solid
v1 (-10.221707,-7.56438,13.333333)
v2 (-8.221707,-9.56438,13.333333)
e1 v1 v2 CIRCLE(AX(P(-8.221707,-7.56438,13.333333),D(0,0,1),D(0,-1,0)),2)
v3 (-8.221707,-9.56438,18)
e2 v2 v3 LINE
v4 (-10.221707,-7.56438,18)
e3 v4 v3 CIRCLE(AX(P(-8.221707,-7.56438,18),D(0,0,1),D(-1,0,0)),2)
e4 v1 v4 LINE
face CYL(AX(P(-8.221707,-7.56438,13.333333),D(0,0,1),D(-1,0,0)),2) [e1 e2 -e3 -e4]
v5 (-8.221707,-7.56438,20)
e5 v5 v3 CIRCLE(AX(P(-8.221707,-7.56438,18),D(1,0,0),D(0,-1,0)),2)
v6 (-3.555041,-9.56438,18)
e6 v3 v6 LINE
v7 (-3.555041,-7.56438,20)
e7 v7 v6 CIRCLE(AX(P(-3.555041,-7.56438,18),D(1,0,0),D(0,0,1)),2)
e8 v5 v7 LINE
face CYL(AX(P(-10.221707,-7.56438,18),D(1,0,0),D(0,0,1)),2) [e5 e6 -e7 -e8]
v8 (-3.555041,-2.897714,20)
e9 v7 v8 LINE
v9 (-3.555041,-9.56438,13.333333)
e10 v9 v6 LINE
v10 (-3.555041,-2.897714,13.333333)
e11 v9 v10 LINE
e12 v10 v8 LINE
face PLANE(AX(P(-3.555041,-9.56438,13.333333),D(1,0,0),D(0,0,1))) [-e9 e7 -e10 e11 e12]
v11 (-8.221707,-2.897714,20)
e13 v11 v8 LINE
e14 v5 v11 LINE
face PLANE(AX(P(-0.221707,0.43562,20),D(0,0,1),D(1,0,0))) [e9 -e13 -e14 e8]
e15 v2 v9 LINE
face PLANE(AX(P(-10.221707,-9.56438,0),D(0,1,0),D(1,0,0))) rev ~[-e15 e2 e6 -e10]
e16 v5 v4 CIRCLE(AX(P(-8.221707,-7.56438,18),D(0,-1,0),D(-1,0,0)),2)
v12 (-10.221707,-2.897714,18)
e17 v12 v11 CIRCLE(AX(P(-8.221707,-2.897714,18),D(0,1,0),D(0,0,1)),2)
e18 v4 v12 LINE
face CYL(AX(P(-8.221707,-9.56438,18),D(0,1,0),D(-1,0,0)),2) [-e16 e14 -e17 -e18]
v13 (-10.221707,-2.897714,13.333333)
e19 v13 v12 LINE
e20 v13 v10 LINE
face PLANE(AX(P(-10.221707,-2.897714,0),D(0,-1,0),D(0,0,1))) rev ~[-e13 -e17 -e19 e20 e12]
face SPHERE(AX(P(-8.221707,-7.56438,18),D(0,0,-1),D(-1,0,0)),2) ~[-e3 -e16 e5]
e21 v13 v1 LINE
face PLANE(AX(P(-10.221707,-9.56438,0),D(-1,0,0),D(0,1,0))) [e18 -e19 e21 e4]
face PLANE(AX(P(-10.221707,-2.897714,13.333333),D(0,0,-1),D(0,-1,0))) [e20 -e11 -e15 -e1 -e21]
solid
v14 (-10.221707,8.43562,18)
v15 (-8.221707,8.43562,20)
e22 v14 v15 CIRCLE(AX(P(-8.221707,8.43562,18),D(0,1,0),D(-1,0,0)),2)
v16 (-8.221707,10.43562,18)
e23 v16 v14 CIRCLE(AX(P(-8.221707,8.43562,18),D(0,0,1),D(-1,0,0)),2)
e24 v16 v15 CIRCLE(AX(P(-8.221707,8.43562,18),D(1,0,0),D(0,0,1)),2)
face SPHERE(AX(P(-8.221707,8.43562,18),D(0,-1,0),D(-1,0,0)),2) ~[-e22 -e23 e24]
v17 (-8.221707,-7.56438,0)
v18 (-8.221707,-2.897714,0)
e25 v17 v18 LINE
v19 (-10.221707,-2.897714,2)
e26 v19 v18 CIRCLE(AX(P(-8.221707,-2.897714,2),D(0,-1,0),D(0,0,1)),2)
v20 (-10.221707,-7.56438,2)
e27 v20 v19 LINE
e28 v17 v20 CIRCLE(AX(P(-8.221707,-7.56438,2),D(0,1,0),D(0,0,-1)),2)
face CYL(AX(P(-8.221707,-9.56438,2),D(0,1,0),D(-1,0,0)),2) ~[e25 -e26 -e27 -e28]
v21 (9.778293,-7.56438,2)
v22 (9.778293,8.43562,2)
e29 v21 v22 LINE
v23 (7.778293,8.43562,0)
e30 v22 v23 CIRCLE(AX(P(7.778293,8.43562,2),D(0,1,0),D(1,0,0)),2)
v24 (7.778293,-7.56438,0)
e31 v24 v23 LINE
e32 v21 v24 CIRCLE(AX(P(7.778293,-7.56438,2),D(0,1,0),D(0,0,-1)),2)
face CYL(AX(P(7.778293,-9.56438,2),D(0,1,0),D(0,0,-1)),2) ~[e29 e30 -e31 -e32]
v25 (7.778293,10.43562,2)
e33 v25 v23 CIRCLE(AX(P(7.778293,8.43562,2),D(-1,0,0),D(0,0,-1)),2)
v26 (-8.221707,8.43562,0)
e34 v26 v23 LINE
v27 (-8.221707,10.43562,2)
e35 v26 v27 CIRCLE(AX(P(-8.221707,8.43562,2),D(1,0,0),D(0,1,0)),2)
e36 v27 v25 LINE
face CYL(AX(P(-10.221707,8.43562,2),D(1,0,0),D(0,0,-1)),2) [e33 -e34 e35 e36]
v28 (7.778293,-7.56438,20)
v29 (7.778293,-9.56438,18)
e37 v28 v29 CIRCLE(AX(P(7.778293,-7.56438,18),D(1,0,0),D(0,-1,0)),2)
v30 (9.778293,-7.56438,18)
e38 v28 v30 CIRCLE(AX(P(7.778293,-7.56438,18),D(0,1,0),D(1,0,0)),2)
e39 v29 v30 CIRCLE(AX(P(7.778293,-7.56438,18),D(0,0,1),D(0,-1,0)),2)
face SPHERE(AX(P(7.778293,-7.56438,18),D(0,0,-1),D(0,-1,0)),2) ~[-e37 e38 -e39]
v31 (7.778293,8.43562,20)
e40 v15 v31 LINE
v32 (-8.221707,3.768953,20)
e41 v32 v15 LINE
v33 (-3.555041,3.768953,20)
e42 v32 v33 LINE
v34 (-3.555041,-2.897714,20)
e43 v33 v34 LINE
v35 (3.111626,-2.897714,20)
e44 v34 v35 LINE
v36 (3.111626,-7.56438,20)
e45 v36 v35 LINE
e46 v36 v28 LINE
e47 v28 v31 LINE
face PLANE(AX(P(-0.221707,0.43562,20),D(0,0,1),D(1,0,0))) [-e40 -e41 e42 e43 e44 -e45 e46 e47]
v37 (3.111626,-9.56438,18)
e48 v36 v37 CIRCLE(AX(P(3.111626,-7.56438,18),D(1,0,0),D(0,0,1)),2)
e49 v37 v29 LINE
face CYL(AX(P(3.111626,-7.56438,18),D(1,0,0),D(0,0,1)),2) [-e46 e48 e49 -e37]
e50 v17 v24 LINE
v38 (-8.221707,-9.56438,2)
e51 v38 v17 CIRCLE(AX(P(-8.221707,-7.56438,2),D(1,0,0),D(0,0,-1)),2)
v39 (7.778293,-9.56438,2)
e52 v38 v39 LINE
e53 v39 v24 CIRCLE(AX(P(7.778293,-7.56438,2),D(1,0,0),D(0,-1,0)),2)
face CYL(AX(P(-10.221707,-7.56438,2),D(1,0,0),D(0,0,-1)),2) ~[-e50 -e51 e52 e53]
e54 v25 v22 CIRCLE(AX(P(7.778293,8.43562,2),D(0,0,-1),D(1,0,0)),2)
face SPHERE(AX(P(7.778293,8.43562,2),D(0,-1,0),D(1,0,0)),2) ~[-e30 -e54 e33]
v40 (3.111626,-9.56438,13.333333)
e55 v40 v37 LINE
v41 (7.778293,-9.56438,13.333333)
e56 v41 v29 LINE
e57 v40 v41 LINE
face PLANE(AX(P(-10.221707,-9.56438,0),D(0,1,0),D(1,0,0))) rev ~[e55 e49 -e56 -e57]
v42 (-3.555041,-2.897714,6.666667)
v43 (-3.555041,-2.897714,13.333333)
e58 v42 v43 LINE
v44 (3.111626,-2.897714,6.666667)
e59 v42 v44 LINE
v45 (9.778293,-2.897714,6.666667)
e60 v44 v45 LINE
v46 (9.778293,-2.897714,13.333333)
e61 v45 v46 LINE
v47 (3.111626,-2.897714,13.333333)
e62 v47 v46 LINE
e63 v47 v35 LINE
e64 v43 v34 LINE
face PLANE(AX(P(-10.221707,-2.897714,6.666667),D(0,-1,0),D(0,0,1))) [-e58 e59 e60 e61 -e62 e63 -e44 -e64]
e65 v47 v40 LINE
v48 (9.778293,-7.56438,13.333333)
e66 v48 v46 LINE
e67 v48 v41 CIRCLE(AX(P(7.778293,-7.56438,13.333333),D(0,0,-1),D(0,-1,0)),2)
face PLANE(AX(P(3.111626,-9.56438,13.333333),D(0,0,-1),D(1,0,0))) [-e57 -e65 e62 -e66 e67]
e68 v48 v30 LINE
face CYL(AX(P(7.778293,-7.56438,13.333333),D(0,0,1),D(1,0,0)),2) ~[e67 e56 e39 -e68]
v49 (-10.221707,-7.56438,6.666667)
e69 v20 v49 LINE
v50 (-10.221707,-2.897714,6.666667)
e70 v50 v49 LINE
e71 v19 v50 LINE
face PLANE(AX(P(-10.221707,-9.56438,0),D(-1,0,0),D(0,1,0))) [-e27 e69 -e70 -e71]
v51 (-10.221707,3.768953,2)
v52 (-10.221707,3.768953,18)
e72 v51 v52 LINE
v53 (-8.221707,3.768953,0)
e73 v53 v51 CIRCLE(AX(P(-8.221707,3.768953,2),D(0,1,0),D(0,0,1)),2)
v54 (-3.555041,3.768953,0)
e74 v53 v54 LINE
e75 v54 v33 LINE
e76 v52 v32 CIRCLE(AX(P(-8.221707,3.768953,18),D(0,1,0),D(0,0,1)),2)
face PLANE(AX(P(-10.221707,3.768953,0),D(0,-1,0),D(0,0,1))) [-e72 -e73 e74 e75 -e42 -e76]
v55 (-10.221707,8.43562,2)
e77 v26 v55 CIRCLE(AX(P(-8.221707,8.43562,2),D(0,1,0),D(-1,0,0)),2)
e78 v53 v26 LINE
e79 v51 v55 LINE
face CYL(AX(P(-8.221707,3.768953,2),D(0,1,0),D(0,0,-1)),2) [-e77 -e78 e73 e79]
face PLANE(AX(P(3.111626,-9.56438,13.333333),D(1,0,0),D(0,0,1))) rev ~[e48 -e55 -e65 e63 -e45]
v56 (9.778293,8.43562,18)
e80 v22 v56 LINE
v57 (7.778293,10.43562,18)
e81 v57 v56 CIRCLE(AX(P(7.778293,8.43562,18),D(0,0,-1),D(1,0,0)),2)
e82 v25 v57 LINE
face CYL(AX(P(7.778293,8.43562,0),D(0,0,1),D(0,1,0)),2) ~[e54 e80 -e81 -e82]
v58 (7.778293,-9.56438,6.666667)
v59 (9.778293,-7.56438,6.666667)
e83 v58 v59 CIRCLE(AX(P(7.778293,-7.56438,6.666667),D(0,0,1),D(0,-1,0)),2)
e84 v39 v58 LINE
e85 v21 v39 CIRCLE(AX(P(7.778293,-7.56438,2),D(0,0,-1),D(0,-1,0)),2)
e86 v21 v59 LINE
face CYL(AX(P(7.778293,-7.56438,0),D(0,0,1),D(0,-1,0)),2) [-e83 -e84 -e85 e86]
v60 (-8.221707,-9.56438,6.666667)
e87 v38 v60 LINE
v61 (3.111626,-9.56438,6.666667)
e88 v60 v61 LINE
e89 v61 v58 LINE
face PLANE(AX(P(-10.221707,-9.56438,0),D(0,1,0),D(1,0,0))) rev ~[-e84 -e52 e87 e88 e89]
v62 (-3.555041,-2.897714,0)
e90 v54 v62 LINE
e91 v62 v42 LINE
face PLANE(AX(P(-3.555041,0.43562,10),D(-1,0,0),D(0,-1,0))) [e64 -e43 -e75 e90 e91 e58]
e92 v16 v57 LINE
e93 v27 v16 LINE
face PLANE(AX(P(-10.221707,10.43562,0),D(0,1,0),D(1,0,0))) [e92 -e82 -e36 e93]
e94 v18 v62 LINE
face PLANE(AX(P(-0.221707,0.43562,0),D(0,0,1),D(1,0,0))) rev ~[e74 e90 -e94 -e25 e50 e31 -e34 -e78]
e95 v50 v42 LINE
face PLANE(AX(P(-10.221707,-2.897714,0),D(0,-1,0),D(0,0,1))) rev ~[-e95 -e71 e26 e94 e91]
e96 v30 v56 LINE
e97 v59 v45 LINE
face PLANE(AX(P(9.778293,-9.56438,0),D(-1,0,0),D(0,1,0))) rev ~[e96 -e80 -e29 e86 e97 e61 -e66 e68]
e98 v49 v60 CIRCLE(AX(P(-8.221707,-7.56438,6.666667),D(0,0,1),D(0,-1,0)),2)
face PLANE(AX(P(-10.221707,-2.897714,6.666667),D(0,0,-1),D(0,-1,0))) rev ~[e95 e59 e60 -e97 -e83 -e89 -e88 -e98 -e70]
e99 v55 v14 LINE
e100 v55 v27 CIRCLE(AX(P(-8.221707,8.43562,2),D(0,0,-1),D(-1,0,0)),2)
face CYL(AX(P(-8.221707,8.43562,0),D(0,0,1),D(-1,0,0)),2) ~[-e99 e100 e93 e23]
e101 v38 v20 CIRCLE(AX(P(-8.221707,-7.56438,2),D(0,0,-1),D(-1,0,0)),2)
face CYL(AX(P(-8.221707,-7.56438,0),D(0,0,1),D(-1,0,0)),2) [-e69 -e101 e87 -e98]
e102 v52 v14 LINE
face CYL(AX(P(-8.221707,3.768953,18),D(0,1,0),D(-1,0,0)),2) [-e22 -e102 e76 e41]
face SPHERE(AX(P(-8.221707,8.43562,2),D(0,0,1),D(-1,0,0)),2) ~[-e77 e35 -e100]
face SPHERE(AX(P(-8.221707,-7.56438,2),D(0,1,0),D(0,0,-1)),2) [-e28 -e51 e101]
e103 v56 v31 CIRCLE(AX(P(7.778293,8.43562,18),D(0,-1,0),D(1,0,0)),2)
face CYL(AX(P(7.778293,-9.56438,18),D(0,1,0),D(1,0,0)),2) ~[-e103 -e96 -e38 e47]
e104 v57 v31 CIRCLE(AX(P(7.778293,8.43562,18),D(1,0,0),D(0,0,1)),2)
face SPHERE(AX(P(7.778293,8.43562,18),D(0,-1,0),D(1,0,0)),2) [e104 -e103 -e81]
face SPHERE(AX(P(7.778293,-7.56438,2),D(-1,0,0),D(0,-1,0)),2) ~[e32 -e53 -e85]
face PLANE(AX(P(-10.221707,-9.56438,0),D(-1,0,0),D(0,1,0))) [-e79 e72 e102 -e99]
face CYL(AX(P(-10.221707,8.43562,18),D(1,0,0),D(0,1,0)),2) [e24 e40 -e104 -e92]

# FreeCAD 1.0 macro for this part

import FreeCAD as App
import Part
import Sketcher
Q = App.Units.Quantity


def edges_at(feature, points):
    """Names of the edges that pass closest to the given points."""
    edges = feature.Shape.Edges
    near = lambda p: min(range(len(edges)), key=lambda i: edges[i].distToShape(Part.Vertex(*p))[0])
    return sorted({f"Edge{near(p) + 1}" for p in points})


def add_polygon(sketch, points):
    """Adds a closed chain of lines whose ends are joined by coincident constraints."""
    first, n = sketch.GeometryCount, len(points)
    for a, b in zip(points, points[1:] + points[:1]):
        sketch.addGeometry(Part.LineSegment(App.Vector(*a, 0), App.Vector(*b, 0)), False)
    for i in range(n):
        sketch.addConstraint(Sketcher.Constraint("Coincident", first + i, 2, first + (i + 1) % n, 1))

doc = App.newDocument("Part")
body = doc.addObject("PartDesign::Body", "Body")
body.AllowCompound = True

sketch1 = body.newObject("Sketcher::SketchObject", "Sketch")
sketch1.AttachmentSupport = (doc.getObject("XY_Plane"), [""])
sketch1.MapMode = "FlatFace"
add_polygon(sketch1, [(-10.221707, 10.43562), (-10.221707, -9.56438), (9.778293, -9.56438), (9.778293, 10.43562)])
sketch1.addConstraint([
    Sketcher.Constraint("Vertical", 0),
    Sketcher.Constraint("Horizontal", 1),
    Sketcher.Constraint("Vertical", 2),
    Sketcher.Constraint("Horizontal", 3),
    Sketcher.Constraint("Equal", 3, 0),
    Sketcher.Constraint("DistanceX", 1, 1, 1, 2, Q("20 mm")),
    Sketcher.Constraint("DistanceY", 0, 2, -1, 1, Q("9.56438 mm")),
    Sketcher.Constraint("DistanceX", 0, 2, -1, 1, Q("10.221707 mm")),
])
pad1 = body.newObject("PartDesign::Pad", "Pad")
pad1.Profile = sketch1
pad1.Length = 20

sketch2 = body.newObject("Sketcher::SketchObject", "Sketch001")
sketch2.AttachmentSupport = (doc.getObject("YZ_Plane"), [""])
sketch2.MapMode = "FlatFace"
sketch2.AttachmentOffset = App.Placement(App.Vector(0, 0, -10.221707), App.Rotation())
add_polygon(sketch2, [(3.768953, 20), (3.768953, 0), (-2.897714, 0), (-2.897714, 20)])
sketch2.addConstraint([
    Sketcher.Constraint("Vertical", 0),
    Sketcher.Constraint("Horizontal", 1),
    Sketcher.Constraint("Vertical", 2),
    Sketcher.Constraint("Horizontal", 3),
    Sketcher.Constraint("PointOnObject", 0, 2, -1),
    Sketcher.Constraint("DistanceY", 0, 2, 0, 1, Q("20 mm")),
    Sketcher.Constraint("DistanceX", 1, 2, 1, 1, Q("6.666667 mm")),
    Sketcher.Constraint("DistanceX", -1, 1, 0, 2, Q("3.768953 mm")),
])
pocket1 = body.newObject("PartDesign::Pocket", "Pocket")
pocket1.Profile = sketch2
pocket1.Length = 6.666667
pocket1.Reversed = True

sketch3 = body.newObject("Sketcher::SketchObject", "Sketch002")
sketch3.AttachmentSupport = (doc.getObject("YZ_Plane"), [""])
sketch3.MapMode = "FlatFace"
sketch3.AttachmentOffset = App.Placement(App.Vector(0, 0, -10.221707), App.Rotation())
add_polygon(sketch3, [(-2.897714, 13.333333), (-2.897714, 6.666667), (-9.56438, 6.666667), (-9.56438, 13.333333)])
sketch3.addConstraint([
    Sketcher.Constraint("Vertical", 0),
    Sketcher.Constraint("Horizontal", 1),
    Sketcher.Constraint("Vertical", 2),
    Sketcher.Constraint("Horizontal", 3),
    Sketcher.Constraint("Equal", 3, 0),
    Sketcher.Constraint("DistanceX", 1, 2, 1, 1, Q("6.666667 mm")),
    Sketcher.Constraint("DistanceX", 1, 2, -1, 1, Q("9.56438 mm")),
    Sketcher.Constraint("DistanceY", -1, 1, 0, 2, Q("6.666667 mm")),
])
pocket2 = body.newObject("PartDesign::Pocket", "Pocket001")
pocket2.Profile = sketch3
pocket2.Length = 13.333333
pocket2.Reversed = True

sketch4 = body.newObject("Sketcher::SketchObject", "Sketch003")
sketch4.AttachmentSupport = (doc.getObject("XZ_Plane"), [""])
sketch4.MapMode = "FlatFace"
sketch4.AttachmentOffset = App.Placement(App.Vector(0, 0, 9.56438), App.Rotation())
add_polygon(sketch4, [(3.111626, 13.333333), (3.111626, 6.666667), (9.778293, 6.666667), (9.778293, 13.333333)])
add_polygon(sketch4, [(-3.555041, 20), (-3.555041, 13.333333), (3.111626, 13.333333), (3.111626, 20)])
sketch4.addConstraint([
    Sketcher.Constraint("Vertical", 0),
    Sketcher.Constraint("Horizontal", 1),
    Sketcher.Constraint("Vertical", 2),
    Sketcher.Constraint("Horizontal", 3),
    Sketcher.Constraint("Vertical", 4),
    Sketcher.Constraint("Horizontal", 5),
    Sketcher.Constraint("Vertical", 6),
    Sketcher.Constraint("Horizontal", 7),
    Sketcher.Constraint("Coincident", 5, 2, 3, 2),
    Sketcher.Constraint("Equal", 3, 5),
    Sketcher.Constraint("Equal", 7, 0),
    Sketcher.Constraint("Equal", 2, 4),
    Sketcher.Constraint("DistanceY", -1, 1, 6, 2, Q("20 mm")),
    Sketcher.Constraint("DistanceX", 1, 1, 1, 2, Q("6.666667 mm")),
    Sketcher.Constraint("DistanceX", 4, 2, -1, 1, Q("3.555041 mm")),
])
pocket3 = body.newObject("PartDesign::Pocket", "Pocket002")
pocket3.Profile = sketch4
pocket3.Length = 6.666667
doc.recompute()

fillet = body.newObject("PartDesign::Fillet", "Fillet")
fillet.Base = (pocket3, edges_at(pocket3, [
    (-10.222, 7.102, 20),
    (-10.222, 10.436, 10),
    (-10.222, 7.102, 0),
    (-10.222, -6.231, 0),
    (-0.222, -9.564, 0),
    (-10.222, -9.564, 16.667),
    (-10.222, -6.231, 20),
    (-6.888, -9.564, 20),
    (9.778, -9.564, 3.333),
    (9.778, -9.564, 16.667),
    (6.445, -9.564, 20),
    (9.778, 0.436, 20),
    (9.778, 0.436, 0),
    (9.778, 10.436, 10),
    (-0.222, 10.436, 0),
    (-0.222, 10.436, 20),
    (-10.222, -9.564, 3.333),
]))
fillet.Radius = 2

doc.recompute()
